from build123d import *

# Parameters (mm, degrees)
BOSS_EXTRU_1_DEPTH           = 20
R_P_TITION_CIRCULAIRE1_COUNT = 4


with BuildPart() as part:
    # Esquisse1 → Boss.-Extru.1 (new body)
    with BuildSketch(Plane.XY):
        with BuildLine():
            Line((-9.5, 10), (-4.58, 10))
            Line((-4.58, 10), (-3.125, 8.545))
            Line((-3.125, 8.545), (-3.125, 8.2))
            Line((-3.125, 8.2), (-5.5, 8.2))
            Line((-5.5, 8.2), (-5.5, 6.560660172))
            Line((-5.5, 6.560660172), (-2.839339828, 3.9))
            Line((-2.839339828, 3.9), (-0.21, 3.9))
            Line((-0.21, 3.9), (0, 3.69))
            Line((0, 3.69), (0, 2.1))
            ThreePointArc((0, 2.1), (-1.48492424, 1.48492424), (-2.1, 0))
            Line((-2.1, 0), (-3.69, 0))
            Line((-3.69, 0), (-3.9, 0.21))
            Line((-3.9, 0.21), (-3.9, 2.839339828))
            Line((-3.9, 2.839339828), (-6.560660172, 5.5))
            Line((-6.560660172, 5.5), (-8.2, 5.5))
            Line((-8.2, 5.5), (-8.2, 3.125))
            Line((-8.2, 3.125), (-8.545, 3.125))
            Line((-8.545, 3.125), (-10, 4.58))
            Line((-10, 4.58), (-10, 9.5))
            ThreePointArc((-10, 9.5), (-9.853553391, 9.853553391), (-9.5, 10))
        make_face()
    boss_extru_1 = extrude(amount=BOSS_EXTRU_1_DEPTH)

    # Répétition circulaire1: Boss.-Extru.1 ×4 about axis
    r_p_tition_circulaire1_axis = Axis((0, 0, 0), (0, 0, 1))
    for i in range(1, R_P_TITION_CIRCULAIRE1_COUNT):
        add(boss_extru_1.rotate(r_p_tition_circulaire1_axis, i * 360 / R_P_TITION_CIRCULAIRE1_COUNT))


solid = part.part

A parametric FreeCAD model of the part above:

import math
import FreeCAD as App
import Part
import Sketcher
Q = App.Units.Quantity

doc = App.newDocument("Part")
body = doc.addObject("PartDesign::Body", "Body")

sketch1 = body.newObject("Sketcher::SketchObject", "Sketch")
sketch1.AttachmentSupport = (doc.getObject("XY_Plane"), [""])
sketch1.MapMode = "FlatFace"
sketch1.addGeometry(Part.LineSegment(App.Vector(-4.58, 10, 0), App.Vector(-9.5, 10, 0)), False)
sketch1.addGeometry(Part.ArcOfCircle(Part.Circle(App.Vector(-9.5, 9.5, 0), App.Vector(0, 0, 1), 0.5), math.radians(90), math.radians(180)), False)
sketch1.addGeometry(Part.LineSegment(App.Vector(-10, 9.5, 0), App.Vector(-10, 4.58, 0)), False)
sketch1.addGeometry(Part.LineSegment(App.Vector(-10, 4.58, 0), App.Vector(-8.54, 3.12, 0)), False)
sketch1.addGeometry(Part.LineSegment(App.Vector(-8.54, 3.12, 0), App.Vector(-8.2, 3.12, 0)), False)
sketch1.addGeometry(Part.LineSegment(App.Vector(-8.2, 3.12, 0), App.Vector(-8.2, 5.5, 0)), False)
sketch1.addGeometry(Part.LineSegment(App.Vector(-8.2, 5.5, 0), App.Vector(-6.56, 5.5, 0)), False)
sketch1.addGeometry(Part.LineSegment(App.Vector(-6.56, 5.5, 0), App.Vector(-3.9, 2.84, 0)), False)
sketch1.addGeometry(Part.LineSegment(App.Vector(-3.9, 2.84, 0), App.Vector(-3.9, 0.21, 0)), False)
sketch1.addGeometry(Part.LineSegment(App.Vector(-3.9, 0.21, 0), App.Vector(-3.69, 0, 0)), False)
sketch1.addGeometry(Part.LineSegment(App.Vector(-3.69, 0, 0), App.Vector(-2.1, 0, 0)), False)
sketch1.addGeometry(Part.ArcOfCircle(Part.Circle(App.Vector(0, 0, 0), App.Vector(0, 0, 1), 2.1), math.radians(90), math.radians(180)), False)
sketch1.addGeometry(Part.LineSegment(App.Vector(0, 2.1, 0), App.Vector(0, 3.69, 0)), False)
sketch1.addGeometry(Part.LineSegment(App.Vector(0, 3.69, 0), App.Vector(-0.21, 3.9, 0)), False)
sketch1.addGeometry(Part.LineSegment(App.Vector(-0.21, 3.9, 0), App.Vector(-2.84, 3.9, 0)), False)
sketch1.addGeometry(Part.LineSegment(App.Vector(-2.84, 3.9, 0), App.Vector(-5.5, 6.56, 0)), False)
sketch1.addGeometry(Part.LineSegment(App.Vector(-5.5, 6.56, 0), App.Vector(-5.5, 8.2, 0)), False)
sketch1.addGeometry(Part.LineSegment(App.Vector(-5.5, 8.2, 0), App.Vector(-3.12, 8.2, 0)), False)
sketch1.addGeometry(Part.LineSegment(App.Vector(-3.12, 8.2, 0), App.Vector(-3.12, 8.54, 0)), False)
sketch1.addGeometry(Part.LineSegment(App.Vector(-3.12, 8.54, 0), App.Vector(-4.58, 10, 0)), False)
sketch1.addConstraint(Sketcher.Constraint("Tangent", 0, 2, 1, 1))
sketch1.addConstraint(Sketcher.Constraint("Tangent", 1, 2, 2, 1))
sketch1.addConstraint(Sketcher.Constraint("Coincident", 2, 2, 3, 1))
sketch1.addConstraint(Sketcher.Constraint("Coincident", 3, 2, 4, 1))
sketch1.addConstraint(Sketcher.Constraint("Coincident", 4, 2, 5, 1))
sketch1.addConstraint(Sketcher.Constraint("Coincident", 5, 2, 6, 1))
sketch1.addConstraint(Sketcher.Constraint("Coincident", 6, 2, 7, 1))
sketch1.addConstraint(Sketcher.Constraint("Coincident", 7, 2, 8, 1))
sketch1.addConstraint(Sketcher.Constraint("Coincident", 8, 2, 9, 1))
sketch1.addConstraint(Sketcher.Constraint("Coincident", 9, 2, 10, 1))
sketch1.addConstraint(Sketcher.Constraint("Coincident", 10, 2, 11, 2))
sketch1.addConstraint(Sketcher.Constraint("Coincident", 11, 1, 12, 1))
sketch1.addConstraint(Sketcher.Constraint("Coincident", 12, 2, 13, 1))
sketch1.addConstraint(Sketcher.Constraint("Coincident", 13, 2, 14, 1))
sketch1.addConstraint(Sketcher.Constraint("Coincident", 14, 2, 15, 1))
sketch1.addConstraint(Sketcher.Constraint("Coincident", 15, 2, 16, 1))
sketch1.addConstraint(Sketcher.Constraint("Coincident", 16, 2, 17, 1))
sketch1.addConstraint(Sketcher.Constraint("Coincident", 17, 2, 18, 1))
sketch1.addConstraint(Sketcher.Constraint("Coincident", 18, 2, 19, 1))
sketch1.addConstraint(Sketcher.Constraint("Coincident", 19, 2, 0, 1))
sketch1.addConstraint(Sketcher.Constraint("Horizontal", 0))
sketch1.addConstraint(Sketcher.Constraint("Vertical", 2))
sketch1.addConstraint(Sketcher.Constraint("Horizontal", 4))
sketch1.addConstraint(Sketcher.Constraint("Vertical", 5))
sketch1.addConstraint(Sketcher.Constraint("Horizontal", 6))
sketch1.addConstraint(Sketcher.Constraint("Vertical", 8))
sketch1.addConstraint(Sketcher.Constraint("Horizontal", 10))
sketch1.addConstraint(Sketcher.Constraint("Vertical", 12))
sketch1.addConstraint(Sketcher.Constraint("Horizontal", 14))
sketch1.addConstraint(Sketcher.Constraint("Vertical", 16))
sketch1.addConstraint(Sketcher.Constraint("Horizontal", 17))
sketch1.addConstraint(Sketcher.Constraint("Vertical", 18))
sketch1.addConstraint(Sketcher.Constraint("Coincident", 11, 3, -1, 1))
sketch1.addConstraint(Sketcher.Constraint("PointOnObject", 9, 2, -1))
sketch1.addConstraint(Sketcher.Constraint("PointOnObject", 11, 1, -2))
sketch1.addConstraint(Sketcher.Constraint("Parallel", 3, 7))
sketch1.addConstraint(Sketcher.Constraint("Parallel", 7, 9))
sketch1.addConstraint(Sketcher.Constraint("Parallel", 9, 13))
sketch1.addConstraint(Sketcher.Constraint("Parallel", 13, 15))
sketch1.addConstraint(Sketcher.Constraint("Parallel", 15, 19))
sketch1.addConstraint(Sketcher.Constraint("Equal", 0, 2))
sketch1.addConstraint(Sketcher.Constraint("Equal", 17, 5))
sketch1.addConstraint(Sketcher.Constraint("Equal", 14, 8))
sketch1.addConstraint(Sketcher.Constraint("Equal", 10, 12))
sketch1.addConstraint(Sketcher.Constraint("Equal", 6, 16))
sketch1.addConstraint(Sketcher.Constraint("Equal", 4, 18))
sketch1.addConstraint(Sketcher.Constraint("Equal", 9, 13))
sketch1.addConstraint(Sketcher.Constraint("Equal", 7, 15))
sketch1.addConstraint(Sketcher.Constraint("Radius", 1, Q("0.5 mm")))
sketch1.addConstraint(Sketcher.Constraint("Radius", 11, Q("2.1 mm")))
sketch1.addConstraint(Sketcher.Constraint("Angle", 3, Q("-45 deg")))
sketch1.addConstraint(Sketcher.Constraint("DistanceY", -1, 1, 0, 2, Q("10 mm")))
sketch1.addConstraint(Sketcher.Constraint("DistanceY", 5, 2, 1, 3, Q("4 mm")))
sketch1.addConstraint(Sketcher.Constraint("DistanceX", 0, 2, 0, 1, Q("4.92 mm")))
sketch1.addConstraint(Sketcher.Constraint("DistanceX", 10, 1, 10, 2, Q("1.59 mm")))
sketch1.addConstraint(Sketcher.Constraint("DistanceX", 4, 2, -1, 1, Q("8.2 mm")))
sketch1.addConstraint(Sketcher.Constraint("DistanceX", 7, 2, -1, 1, Q("3.9 mm")))
sketch1.addConstraint(Sketcher.Constraint("DistanceX", 4, 1, 4, 2, Q("0.345 mm")))
sketch1.addConstraint(Sketcher.Constraint("DistanceX", 6, 1, 6, 2, Q("1.63934 mm")))
pad1 = body.newObject("PartDesign::Pad", "Pad")
pad1.Profile = sketch1
pad1.Length = 20
doc.recompute()

polarpattern = body.newObject("PartDesign::PolarPattern", "PolarPattern")
polarpattern.Originals = [pad1]
polarpattern.Axis = (doc.getObject("Z_Axis"), [""])
polarpattern.Angle = 360
polarpattern.Occurrences = 4
body.Tip = polarpattern

doc.recompute()
